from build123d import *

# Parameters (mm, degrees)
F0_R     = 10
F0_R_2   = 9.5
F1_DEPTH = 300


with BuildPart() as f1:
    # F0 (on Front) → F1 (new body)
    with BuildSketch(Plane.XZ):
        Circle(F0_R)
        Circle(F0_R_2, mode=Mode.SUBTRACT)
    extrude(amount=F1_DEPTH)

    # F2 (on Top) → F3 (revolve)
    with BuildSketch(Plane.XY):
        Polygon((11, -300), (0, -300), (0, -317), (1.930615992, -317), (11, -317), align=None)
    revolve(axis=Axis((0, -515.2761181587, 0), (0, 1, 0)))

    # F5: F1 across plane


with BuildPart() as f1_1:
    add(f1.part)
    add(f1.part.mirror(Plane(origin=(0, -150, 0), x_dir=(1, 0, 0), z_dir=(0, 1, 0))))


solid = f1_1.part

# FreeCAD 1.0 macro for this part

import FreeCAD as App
import Part
import Sketcher


def add_polygon(sketch, points):
    """Adds a closed chain of lines whose ends are joined by coincident constraints."""
    first, n = sketch.GeometryCount, len(points)
    for a, b in zip(points, points[1:] + points[:1]):
        sketch.addGeometry(Part.LineSegment(App.Vector(*a, 0), App.Vector(*b, 0)), False)
    for i in range(n):
        sketch.addConstraint(Sketcher.Constraint("Coincident", first + i, 2, first + (i + 1) % n, 1))

doc = App.newDocument("Part")
body = doc.addObject("PartDesign::Body", "Body")

# Sketch on XZ plane
sketch1 = doc.addObject("Sketcher::SketchObject", "Sketch")
body.addObject(sketch1)
sketch1.AttachmentSupport = (doc.XZ_Plane, [""])
sketch1.MapMode = "FlatFace"
sketch1.addGeometry([
    Part.Circle(App.Vector(0, 0, 0), App.Vector(0, 0, 1), 10),
    Part.Circle(App.Vector(0, 0, 0), App.Vector(0, 0, 1), 10),
], False)
sketch1.addConstraint([
    Sketcher.Constraint("Coincident", 0, 3, -1, 1),
    Sketcher.Constraint("Coincident", 1, 3, -1, 1),
    Sketcher.Constraint("Diameter", 0, 20.0),
    Sketcher.Constraint("Diameter", 1, 19.0),
])
pad1 = doc.addObject("PartDesign::Pad", "Pad")
body.addObject(pad1)
pad1.Profile = sketch1
pad1.Length = 300

# Sketch on XY plane
sketch2 = doc.addObject("Sketcher::SketchObject", "Sketch001")
body.addObject(sketch2)
sketch2.AttachmentSupport = (doc.XY_Plane, [""])
sketch2.MapMode = "FlatFace"
add_polygon(sketch2, [(11, -300), (0, -300), (0, -317), (11, -317)])  # lines 0-3
sketch2.addConstraint([
    Sketcher.Constraint("Horizontal", 0),
    Sketcher.Constraint("Vertical", 1),
    Sketcher.Constraint("Horizontal", 2),
    Sketcher.Constraint("Vertical", 3),
    Sketcher.Constraint("PointOnObject", 0, 2, -2),
    Sketcher.Constraint("DistanceX", 0, 2, 0, 1, 11.0),
    Sketcher.Constraint("DistanceY", 1, 2, 1, 1, 17.0),
    Sketcher.Constraint("DistanceY", 0, 2, -1, 1, 300.0),
])
revolution = doc.addObject("PartDesign::Revolution", "Revolution")
body.addObject(revolution)
revolution.Profile = sketch2
revolution.ReferenceAxis = (sketch2, ["V_Axis"])
revolution.Angle = 360
body2 = doc.addObject("PartDesign::Body", "Body001")
doc.recompute()

body2.BaseFeature = body
doc.recompute()

mirroring = doc.addObject("Part::Mirroring", "Mirroring")
mirroring.Source = body
mirroring.Base = App.Vector(0, -150, 0)
mirroring.Normal = App.Vector(0, 1, 0)
body3 = doc.addObject("PartDesign::Body", "Body002")
body3.BaseFeature = mirroring
boolean = doc.addObject("PartDesign::Boolean", "Boolean")
body2.addObject(boolean)
boolean.Type = "Fuse"
boolean.addObjects([body3])
doc.recompute()
mirroring.Visibility = False

doc.recompute()
